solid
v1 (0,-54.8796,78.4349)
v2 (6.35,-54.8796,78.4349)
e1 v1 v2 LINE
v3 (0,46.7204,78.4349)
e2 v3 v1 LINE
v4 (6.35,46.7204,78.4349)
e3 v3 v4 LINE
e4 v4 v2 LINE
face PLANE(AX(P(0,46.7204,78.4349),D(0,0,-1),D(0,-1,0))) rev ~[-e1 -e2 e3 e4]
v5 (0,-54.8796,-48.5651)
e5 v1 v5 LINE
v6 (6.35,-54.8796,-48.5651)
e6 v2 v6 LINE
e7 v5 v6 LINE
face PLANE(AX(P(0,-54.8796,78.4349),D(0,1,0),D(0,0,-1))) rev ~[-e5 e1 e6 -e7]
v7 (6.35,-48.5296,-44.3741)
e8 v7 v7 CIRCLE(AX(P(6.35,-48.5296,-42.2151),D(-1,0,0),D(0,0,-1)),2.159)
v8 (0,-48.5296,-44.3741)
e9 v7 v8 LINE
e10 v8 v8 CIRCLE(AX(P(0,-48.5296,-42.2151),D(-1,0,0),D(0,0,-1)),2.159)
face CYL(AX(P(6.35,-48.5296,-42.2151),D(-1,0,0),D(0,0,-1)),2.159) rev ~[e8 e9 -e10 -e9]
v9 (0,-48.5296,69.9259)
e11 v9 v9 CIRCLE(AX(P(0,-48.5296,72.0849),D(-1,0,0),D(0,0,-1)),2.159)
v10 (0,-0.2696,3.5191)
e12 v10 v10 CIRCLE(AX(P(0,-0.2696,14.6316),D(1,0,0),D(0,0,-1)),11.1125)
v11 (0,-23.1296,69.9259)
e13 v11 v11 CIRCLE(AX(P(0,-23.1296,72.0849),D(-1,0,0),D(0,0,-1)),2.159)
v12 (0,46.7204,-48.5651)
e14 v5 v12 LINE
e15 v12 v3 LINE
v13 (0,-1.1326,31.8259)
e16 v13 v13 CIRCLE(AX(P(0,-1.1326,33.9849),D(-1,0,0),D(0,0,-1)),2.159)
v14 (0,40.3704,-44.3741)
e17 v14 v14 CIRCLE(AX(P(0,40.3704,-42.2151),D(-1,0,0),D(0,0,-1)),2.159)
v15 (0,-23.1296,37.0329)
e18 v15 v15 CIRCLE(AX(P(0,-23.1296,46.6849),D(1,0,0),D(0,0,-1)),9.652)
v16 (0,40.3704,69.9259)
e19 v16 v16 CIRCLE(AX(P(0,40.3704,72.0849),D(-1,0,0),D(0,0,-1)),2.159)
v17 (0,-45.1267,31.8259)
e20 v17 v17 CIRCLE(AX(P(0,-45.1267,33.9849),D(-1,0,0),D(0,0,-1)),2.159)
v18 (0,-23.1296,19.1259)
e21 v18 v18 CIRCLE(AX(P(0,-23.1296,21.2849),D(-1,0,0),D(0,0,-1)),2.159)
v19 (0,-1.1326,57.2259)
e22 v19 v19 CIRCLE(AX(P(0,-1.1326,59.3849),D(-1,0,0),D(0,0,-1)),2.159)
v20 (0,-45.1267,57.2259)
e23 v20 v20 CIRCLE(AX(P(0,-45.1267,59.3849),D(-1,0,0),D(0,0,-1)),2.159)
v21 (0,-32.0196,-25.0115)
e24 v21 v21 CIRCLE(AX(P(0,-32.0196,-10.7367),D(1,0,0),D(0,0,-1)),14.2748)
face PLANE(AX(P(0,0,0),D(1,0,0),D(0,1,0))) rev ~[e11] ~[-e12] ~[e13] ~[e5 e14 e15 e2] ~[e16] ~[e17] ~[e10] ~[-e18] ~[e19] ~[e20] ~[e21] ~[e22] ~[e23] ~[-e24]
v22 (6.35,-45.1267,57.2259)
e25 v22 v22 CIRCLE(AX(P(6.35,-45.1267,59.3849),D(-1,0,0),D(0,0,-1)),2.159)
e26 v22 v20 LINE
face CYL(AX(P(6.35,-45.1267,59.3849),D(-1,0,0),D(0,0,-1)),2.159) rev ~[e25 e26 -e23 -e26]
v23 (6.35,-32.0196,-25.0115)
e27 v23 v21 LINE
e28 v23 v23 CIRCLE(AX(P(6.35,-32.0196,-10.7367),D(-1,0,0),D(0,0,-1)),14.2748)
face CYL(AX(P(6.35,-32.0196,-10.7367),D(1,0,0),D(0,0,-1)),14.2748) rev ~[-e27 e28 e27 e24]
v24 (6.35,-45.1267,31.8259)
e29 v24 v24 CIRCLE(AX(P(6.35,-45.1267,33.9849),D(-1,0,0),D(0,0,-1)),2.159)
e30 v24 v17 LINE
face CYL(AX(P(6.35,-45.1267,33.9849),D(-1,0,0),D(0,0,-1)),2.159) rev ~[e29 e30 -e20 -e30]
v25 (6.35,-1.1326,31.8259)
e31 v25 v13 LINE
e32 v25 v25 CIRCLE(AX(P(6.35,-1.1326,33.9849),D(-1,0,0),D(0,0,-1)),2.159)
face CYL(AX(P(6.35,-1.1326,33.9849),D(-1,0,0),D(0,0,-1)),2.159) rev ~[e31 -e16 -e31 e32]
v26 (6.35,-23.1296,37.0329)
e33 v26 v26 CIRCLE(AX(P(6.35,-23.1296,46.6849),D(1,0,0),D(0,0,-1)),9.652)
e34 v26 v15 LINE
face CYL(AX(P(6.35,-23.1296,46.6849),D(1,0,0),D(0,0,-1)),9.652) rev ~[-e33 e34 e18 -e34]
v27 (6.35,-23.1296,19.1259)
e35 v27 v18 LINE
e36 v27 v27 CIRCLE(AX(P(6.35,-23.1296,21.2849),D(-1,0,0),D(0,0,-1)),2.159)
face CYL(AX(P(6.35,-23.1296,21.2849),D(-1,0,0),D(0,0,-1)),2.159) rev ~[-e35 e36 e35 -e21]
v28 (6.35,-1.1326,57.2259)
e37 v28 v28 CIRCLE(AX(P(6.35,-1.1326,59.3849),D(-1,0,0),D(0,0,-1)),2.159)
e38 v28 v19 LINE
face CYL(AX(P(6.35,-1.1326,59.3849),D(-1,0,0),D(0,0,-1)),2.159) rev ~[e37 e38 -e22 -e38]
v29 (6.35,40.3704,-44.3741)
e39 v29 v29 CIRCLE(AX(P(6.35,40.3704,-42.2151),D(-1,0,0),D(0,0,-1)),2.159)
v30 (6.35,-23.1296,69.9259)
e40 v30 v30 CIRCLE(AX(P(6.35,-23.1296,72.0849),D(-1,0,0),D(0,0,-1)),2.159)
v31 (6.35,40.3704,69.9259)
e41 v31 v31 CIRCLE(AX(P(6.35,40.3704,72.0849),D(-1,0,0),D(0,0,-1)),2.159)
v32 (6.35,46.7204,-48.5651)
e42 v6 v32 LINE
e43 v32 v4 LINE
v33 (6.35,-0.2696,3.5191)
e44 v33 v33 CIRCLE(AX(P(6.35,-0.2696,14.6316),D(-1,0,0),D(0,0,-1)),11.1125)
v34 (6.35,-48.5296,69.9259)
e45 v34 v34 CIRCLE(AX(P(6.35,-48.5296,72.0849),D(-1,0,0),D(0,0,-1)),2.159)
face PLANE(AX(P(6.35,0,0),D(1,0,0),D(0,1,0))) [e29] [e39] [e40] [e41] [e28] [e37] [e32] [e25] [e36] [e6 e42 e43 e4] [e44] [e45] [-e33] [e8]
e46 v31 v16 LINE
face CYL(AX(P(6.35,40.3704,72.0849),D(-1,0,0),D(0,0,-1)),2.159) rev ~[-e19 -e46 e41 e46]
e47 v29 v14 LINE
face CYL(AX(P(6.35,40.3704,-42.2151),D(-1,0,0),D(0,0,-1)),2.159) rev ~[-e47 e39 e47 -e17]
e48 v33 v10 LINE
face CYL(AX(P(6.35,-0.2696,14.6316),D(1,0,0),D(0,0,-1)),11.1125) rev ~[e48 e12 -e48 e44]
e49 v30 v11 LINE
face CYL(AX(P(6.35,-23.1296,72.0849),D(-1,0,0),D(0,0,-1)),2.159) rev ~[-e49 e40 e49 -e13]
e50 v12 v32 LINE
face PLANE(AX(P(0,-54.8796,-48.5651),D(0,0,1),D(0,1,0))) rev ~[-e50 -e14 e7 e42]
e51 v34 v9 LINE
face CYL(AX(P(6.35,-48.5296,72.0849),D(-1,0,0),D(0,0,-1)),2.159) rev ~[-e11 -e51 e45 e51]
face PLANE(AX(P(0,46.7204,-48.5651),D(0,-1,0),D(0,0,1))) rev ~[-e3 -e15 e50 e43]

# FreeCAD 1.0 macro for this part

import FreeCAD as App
import Part
import Sketcher

V = App.Vector
Q = App.Units.Quantity


def add_polygon(sketch, points):
    """Adds a closed chain of lines whose ends are joined by coincident constraints."""
    first, n = sketch.GeometryCount, len(points)
    for a, b in zip(points, points[1:] + points[:1]):
        sketch.addGeometry(Part.LineSegment(App.Vector(*a, 0), App.Vector(*b, 0)), False)
    for i in range(n):
        sketch.addConstraint(Sketcher.Constraint("Coincident", first + i, 2, first + (i + 1) % n, 1))

doc = App.newDocument("Part")
body = doc.addObject("PartDesign::Body", "Body")

sketch1 = body.newObject("Sketcher::SketchObject", "Sketch")
sketch1.AttachmentSupport = (doc.getObject("YZ_Plane"), [""])
sketch1.MapMode = "FlatFace"
add_polygon(sketch1, [(47, -49), (47, 78), (-55, 78), (-55, -49)])
sketch1.addConstraint([
    Sketcher.Constraint("Vertical", 0),
    Sketcher.Constraint("Horizontal", 1),
    Sketcher.Constraint("Vertical", 2),
    Sketcher.Constraint("Horizontal", 3),
    Sketcher.Constraint("DistanceX", 1, 2, 1, 1, Q("4 in")),
    Sketcher.Constraint("DistanceY", 0, 1, 0, 2, Q("5 in")),
    Sketcher.Constraint("DistanceY", -1, 1, 0, 2, Q("3.088 in")),
    Sketcher.Constraint("DistanceX", -1, 1, 0, 2, 46.7204),
])
pad1 = body.newObject("PartDesign::Pad", "Pad")
pad1.Profile = sketch1
pad1.Length = Q("0.25 in")

sketch2 = body.newObject("Sketcher::SketchObject", "Sketch001")
sketch2.AttachmentSupport = (doc.getObject("YZ_Plane"), [""])
sketch2.MapMode = "FlatFace"
sketch2.AttachmentOffset = App.Placement(V(0, 0, 0.25 * 25.4), App.Rotation())
sketch2.addGeometry([
    Part.Circle(V(40.4, 72.1, 0), V(0, 0, 1), 2.2),
    Part.Circle(V(40.4, -42.2, 0), V(0, 0, 1), 2.2),
    Part.Circle(V(-48.5, -42.2, 0), V(0, 0, 1), 2.2),
    Part.Circle(V(-48.5, 72.1, 0), V(0, 0, 1), 2.2),
], False)
sketch2.addConstraint([
    Sketcher.Constraint("Equal", 0, 1),
    Sketcher.Constraint("Equal", 1, 2),
    Sketcher.Constraint("Equal", 2, 3),
    Sketcher.Constraint("Horizontal", 1, 3, 2, 3),
    Sketcher.Constraint("Horizontal", 0, 3, 3, 3),
    Sketcher.Constraint("Vertical", 0, 3, 1, 3),
    Sketcher.Constraint("Vertical", 2, 3, 3, 3),
    Sketcher.Constraint("Diameter", 0, Q("0.17 in")),
    Sketcher.Constraint("DistanceY", 1, 3, 0, 3, Q("4.5 in")),
    Sketcher.Constraint("DistanceX", 2, 3, 1, 3, Q("3.5 in")),
    Sketcher.Constraint("DistanceY", -1, 1, 0, 3, Q("2.838 in")),
    Sketcher.Constraint("DistanceX", -1, 1, 0, 3, 40.3704),
])
doc.recompute()
hole = body.newObject("PartDesign::Hole", "Hole")
hole.Profile = sketch2
hole.ThreadType = "None"
hole.Diameter = Q("0.17 in")
hole.DepthType = "ThroughAll"

sketch3 = body.newObject("Sketcher::SketchObject", "Sketch002")
sketch3.AttachmentSupport = (doc.getObject("YZ_Plane"), [""])
sketch3.MapMode = "FlatFace"
sketch3.AttachmentOffset = App.Placement(V(0, 0, 0.25 * 25.4), App.Rotation())
sketch3.addGeometry(Part.Circle(V(-23, 47, 0), V(0, 0, 1), 10), False)
sketch3.addConstraint([
    Sketcher.Constraint("Diameter", 0, Q("0.76 in")),
    Sketcher.Constraint("DistanceY", -1, 1, 0, 3, Q("1.838 in")),
    Sketcher.Constraint("DistanceX", 0, 3, -1, 1, 23.1296),
])
pocket1 = body.newObject("PartDesign::Pocket", "Pocket")
pocket1.Profile = sketch3
pocket1.Length = Q("2.4375 in")

sketch4 = body.newObject("Sketcher::SketchObject", "Sketch003")
sketch4.AttachmentSupport = (doc.getObject("YZ_Plane"), [""])
sketch4.MapMode = "FlatFace"
sketch4.AttachmentOffset = App.Placement(V(0, 0, 0.25 * 25.4), App.Rotation())
sketch4.addGeometry([
    Part.Circle(V(-23.1, 72.1, 0), V(0, 0, 1), 2.2),
    Part.Circle(V(-23.1, 21.3, 0), V(0, 0, 1), 2.2),
    Part.Circle(V(-1.1, 59.4, 0), V(0, 0, 1), 2.2),
    Part.Circle(V(-1.1, 34, 0), V(0, 0, 1), 2.2),
    Part.Circle(V(-45.1, 34, 0), V(0, 0, 1), 2.2),
    Part.Circle(V(-45.1, 59.4, 0), V(0, 0, 1), 2.2),
], False)
sketch4.addConstraint([
    Sketcher.Constraint("Equal", 0, 1),
    Sketcher.Constraint("Equal", 1, 2),
    Sketcher.Constraint("Equal", 2, 3),
    Sketcher.Constraint("Equal", 3, 4),
    Sketcher.Constraint("Equal", 4, 5),
    Sketcher.Constraint("Horizontal", 3, 3, 4, 3),
    Sketcher.Constraint("Horizontal", 2, 3, 5, 3),
    Sketcher.Constraint("Vertical", 0, 3, 1, 3),
    Sketcher.Constraint("Vertical", 2, 3, 3, 3),
    Sketcher.Constraint("Vertical", 4, 3, 5, 3),
    Sketcher.Constraint("Diameter", 0, Q("0.17 in")),
    Sketcher.Constraint("DistanceY", 1, 3, 0, 3, Q("2 in")),
    Sketcher.Constraint("DistanceY", 3, 3, 2, 3, Q("1 in")),
    Sketcher.Constraint("DistanceY", 2, 3, 0, 3, Q("0.5 in")),
    Sketcher.Constraint("DistanceY", -1, 1, 0, 3, Q("2.838 in")),
    Sketcher.Constraint("DistanceX", 2, 3, -1, 1, Q("0.0446 in")),
    Sketcher.Constraint("DistanceX", 0, 3, -1, 1, 23.1296),
    Sketcher.Constraint("DistanceX", 4, 3, -1, 1, 45.1267),
])
doc.recompute()
hole2 = body.newObject("PartDesign::Hole", "Hole001")
hole2.Profile = sketch4
hole2.ThreadType = "None"
hole2.Diameter = Q("0.17 in")
hole2.DepthType = "ThroughAll"

sketch5 = body.newObject("Sketcher::SketchObject", "Sketch004")
sketch5.AttachmentSupport = (doc.getObject("YZ_Plane"), [""])
sketch5.MapMode = "FlatFace"
sketch5.AttachmentOffset = App.Placement(V(0, 0, 0.25 * 25.4), App.Rotation())
sketch5.addGeometry(Part.Circle(V(0, 15, 0), V(0, 0, 1), 11), False)
sketch5.addConstraint([
    Sketcher.Constraint("Diameter", 0, Q("0.875 in")),
    Sketcher.Constraint("DistanceX", 0, 3, -1, 1, 0.2696),
    Sketcher.Constraint("DistanceY", -1, 1, 0, 3, 14.6316),
])
pocket2 = body.newObject("PartDesign::Pocket", "Pocket001")
pocket2.Profile = sketch5
pocket2.Length = Q("2.625 in")

sketch6 = body.newObject("Sketcher::SketchObject", "Sketch005")
sketch6.AttachmentSupport = (doc.getObject("YZ_Plane"), [""])
sketch6.MapMode = "FlatFace"
sketch6.AttachmentOffset = App.Placement(V(0, 0, 0.25 * 25.4), App.Rotation())
sketch6.addGeometry(Part.Circle(V(-32, -11, 0), V(0, 0, 1), 14), False)
sketch6.addConstraint([
    Sketcher.Constraint("Diameter", 0, Q("1.124 in")),
    Sketcher.Constraint("DistanceY", 0, 3, -1, 1, Q("0.4227 in")),
    Sketcher.Constraint("DistanceX", 0, 3, -1, 1, 32.0196),
])
pocket3 = body.newObject("PartDesign::Pocket", "Pocket002")
pocket3.Profile = sketch6
pocket3.Length = Q("1.5625 in")

doc.recompute()
